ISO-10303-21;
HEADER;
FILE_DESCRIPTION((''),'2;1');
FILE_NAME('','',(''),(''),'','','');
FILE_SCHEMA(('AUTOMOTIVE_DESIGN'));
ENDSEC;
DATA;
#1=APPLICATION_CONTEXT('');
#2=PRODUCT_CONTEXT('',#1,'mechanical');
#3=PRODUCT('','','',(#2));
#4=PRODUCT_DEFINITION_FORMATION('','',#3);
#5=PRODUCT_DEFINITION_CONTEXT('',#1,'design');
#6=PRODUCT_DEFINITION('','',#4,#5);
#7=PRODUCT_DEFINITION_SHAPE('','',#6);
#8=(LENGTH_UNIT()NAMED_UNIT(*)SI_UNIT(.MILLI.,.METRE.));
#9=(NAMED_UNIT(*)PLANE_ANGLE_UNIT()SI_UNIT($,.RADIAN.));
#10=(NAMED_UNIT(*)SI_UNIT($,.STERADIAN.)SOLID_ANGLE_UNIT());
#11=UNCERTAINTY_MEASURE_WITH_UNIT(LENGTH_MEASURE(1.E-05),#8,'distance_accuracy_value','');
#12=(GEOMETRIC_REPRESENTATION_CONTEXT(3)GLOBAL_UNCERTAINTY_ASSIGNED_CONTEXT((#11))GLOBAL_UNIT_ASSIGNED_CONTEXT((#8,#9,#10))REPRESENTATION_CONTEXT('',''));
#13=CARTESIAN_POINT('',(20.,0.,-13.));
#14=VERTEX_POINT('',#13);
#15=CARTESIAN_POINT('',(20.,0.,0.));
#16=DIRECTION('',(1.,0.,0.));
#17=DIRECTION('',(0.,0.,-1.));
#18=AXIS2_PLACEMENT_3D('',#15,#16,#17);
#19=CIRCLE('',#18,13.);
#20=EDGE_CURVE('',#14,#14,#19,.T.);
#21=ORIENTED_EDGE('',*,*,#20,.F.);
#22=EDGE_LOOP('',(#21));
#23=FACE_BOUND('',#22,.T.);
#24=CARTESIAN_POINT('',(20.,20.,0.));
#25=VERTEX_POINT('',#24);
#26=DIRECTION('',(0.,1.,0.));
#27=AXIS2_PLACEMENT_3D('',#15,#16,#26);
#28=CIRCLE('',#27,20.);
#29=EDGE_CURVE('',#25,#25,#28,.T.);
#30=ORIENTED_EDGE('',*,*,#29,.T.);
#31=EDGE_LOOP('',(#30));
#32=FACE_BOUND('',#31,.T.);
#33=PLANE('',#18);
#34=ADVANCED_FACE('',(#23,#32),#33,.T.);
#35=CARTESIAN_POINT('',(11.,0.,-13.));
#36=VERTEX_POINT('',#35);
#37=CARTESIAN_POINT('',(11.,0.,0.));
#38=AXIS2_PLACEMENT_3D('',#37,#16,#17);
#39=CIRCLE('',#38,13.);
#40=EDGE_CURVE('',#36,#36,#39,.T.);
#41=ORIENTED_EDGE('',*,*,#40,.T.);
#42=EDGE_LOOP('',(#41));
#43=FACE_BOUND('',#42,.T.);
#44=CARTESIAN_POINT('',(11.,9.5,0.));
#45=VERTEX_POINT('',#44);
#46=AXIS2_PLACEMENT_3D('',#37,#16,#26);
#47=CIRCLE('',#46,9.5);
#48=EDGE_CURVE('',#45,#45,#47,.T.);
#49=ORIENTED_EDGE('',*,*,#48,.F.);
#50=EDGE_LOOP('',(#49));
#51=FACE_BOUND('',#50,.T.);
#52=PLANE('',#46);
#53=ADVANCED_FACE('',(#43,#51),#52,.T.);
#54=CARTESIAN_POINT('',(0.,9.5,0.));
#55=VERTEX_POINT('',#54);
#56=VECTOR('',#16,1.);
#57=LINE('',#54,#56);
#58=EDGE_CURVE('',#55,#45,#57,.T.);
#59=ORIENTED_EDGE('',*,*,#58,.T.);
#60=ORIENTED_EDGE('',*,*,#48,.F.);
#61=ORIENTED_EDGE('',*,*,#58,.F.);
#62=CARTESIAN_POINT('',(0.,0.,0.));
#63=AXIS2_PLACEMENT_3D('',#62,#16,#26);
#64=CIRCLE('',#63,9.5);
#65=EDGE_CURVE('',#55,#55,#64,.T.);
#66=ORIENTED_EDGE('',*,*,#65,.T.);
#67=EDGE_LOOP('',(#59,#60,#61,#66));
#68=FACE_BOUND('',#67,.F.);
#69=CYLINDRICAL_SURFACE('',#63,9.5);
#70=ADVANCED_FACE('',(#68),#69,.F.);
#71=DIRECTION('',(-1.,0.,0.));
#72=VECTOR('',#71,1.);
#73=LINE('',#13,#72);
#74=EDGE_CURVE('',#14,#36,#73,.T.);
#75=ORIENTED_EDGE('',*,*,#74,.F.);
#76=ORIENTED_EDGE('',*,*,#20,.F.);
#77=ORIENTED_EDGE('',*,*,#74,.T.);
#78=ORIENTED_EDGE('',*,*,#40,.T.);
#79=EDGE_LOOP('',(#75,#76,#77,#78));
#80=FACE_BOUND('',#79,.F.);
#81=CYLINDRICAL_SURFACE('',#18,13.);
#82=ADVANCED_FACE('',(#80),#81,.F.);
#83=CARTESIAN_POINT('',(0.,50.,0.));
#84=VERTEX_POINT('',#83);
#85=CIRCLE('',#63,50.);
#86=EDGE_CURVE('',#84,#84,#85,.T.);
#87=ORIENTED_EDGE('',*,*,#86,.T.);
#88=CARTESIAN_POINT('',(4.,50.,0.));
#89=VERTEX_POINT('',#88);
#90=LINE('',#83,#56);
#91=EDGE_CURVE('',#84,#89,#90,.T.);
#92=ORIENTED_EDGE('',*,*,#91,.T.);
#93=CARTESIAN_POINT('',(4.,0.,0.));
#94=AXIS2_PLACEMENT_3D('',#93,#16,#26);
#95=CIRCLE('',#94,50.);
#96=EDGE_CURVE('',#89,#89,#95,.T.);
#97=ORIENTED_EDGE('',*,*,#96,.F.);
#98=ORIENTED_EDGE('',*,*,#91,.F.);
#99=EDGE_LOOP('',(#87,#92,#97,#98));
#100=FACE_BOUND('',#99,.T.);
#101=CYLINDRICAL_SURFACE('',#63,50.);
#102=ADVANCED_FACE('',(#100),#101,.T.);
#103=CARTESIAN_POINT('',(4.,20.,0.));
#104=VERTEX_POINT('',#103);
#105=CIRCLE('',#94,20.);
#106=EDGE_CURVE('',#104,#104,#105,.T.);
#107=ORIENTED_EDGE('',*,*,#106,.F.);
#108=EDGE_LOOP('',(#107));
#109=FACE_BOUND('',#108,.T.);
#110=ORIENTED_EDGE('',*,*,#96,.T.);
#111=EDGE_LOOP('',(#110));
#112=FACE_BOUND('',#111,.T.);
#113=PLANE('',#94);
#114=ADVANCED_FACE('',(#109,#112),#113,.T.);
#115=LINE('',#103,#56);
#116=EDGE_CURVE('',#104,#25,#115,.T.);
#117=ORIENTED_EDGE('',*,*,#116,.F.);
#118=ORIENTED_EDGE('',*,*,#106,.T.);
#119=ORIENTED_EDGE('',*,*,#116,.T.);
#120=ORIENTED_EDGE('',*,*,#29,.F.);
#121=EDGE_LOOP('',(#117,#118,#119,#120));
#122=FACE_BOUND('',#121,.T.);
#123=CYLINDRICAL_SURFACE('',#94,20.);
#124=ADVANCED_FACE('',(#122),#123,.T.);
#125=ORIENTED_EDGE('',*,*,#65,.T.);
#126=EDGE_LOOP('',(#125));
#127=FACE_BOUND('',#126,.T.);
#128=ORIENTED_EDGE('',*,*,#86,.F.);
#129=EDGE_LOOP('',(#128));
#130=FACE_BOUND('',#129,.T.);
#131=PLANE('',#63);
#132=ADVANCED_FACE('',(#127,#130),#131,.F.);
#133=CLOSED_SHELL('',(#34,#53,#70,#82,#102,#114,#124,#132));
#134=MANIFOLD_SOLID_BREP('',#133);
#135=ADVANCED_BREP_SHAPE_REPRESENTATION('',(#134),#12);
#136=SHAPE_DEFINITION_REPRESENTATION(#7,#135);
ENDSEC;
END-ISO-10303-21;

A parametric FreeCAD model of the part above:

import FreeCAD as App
import Part
import Sketcher
from FreeCAD import Vector
Q = App.Units.Quantity


def add_polygon(sketch, points):
    """Adds a closed chain of lines whose ends are joined by coincident constraints."""
    first, n = sketch.GeometryCount, len(points)
    for a, b in zip(points, points[1:] + points[:1]):
        sketch.addGeometry(Part.LineSegment(App.Vector(*a, 0), App.Vector(*b, 0)), False)
    for i in range(n):
        sketch.addConstraint(Sketcher.Constraint("Coincident", first + i, 2, first + (i + 1) % n, 1))

doc = App.newDocument("Part")
params = doc.addObject("Spreadsheet::Sheet", "Params")
for row, (alias, value) in enumerate([
    ("sketch1_width", "9 mm"),
    ("sketch1_width2", "4 mm"),
    ("revolution_angle", "360 deg"),
    ("sketch2_diameter", "26 mm"),
    ("sketch2_diameter2", "27.85 mm"),
    ("pad1_length", "9 mm"),
], start=1):
    params.set(f"A{row}", alias)
    params.set(f"B{row}", "=" + value)
    params.setAlias(f"B{row}", alias)

body = doc.addObject("PartDesign::Body", "Body")

# Sketch on XY plane
sketch1 = body.newObject("Sketcher::SketchObject", "Sketch")
sketch1.AttachmentSupport = (doc.getObject("XY_Plane"), [""])
sketch1.MapMode = "FlatFace"
add_polygon(sketch1, [(0, 50), (0, 9.5), (11, 9.5), (11, 13.9), (20, 13.9), (20, 20), (4, 20), (4, 50)])  # lines 0-7
sketch1.addConstraint([
    Sketcher.Constraint("Vertical", 0),
    Sketcher.Constraint("Horizontal", 1),
    Sketcher.Constraint("Vertical", 2),
    Sketcher.Constraint("Horizontal", 3),
    Sketcher.Constraint("Vertical", 4),
    Sketcher.Constraint("Horizontal", 5),
    Sketcher.Constraint("Vertical", 6),
    Sketcher.Constraint("Horizontal", 7),
    Sketcher.Constraint("PointOnObject", 0, 2, -2),
    Sketcher.Constraint("DistanceX", 3, 1, 3, 2, Q("9 mm")),
    Sketcher.Constraint("DistanceX", 7, 2, 7, 1, Q("4 mm")),
    Sketcher.Constraint("DistanceX", -1, 1, 3, 2, Q("20 mm")),
    Sketcher.Constraint("DistanceY", -1, 1, 4, 2, Q("20 mm")),
    Sketcher.Constraint("DistanceY", -1, 1, 6, 2, Q("50 mm")),
    Sketcher.Constraint("DistanceY", -1, 1, 0, 2, Q("9.5 mm")),
    Sketcher.Constraint("DistanceY", -1, 1, 2, 2, Q("13.925 mm")),
])
sketch1.setExpression("Constraints[17]", "Params.sketch1_width")
sketch1.setExpression("Constraints[18]", "Params.sketch1_width2")
revolution = body.newObject("PartDesign::Revolution", "Revolution")
revolution.Profile = sketch1
revolution.ReferenceAxis = (sketch1, ["H_Axis"])
revolution.setExpression("Angle", "Params.revolution_angle")

# Sketch on YZ plane
sketch2 = body.newObject("Sketcher::SketchObject", "Sketch001")
sketch2.AttachmentSupport = (doc.getObject("YZ_Plane"), [""])
sketch2.MapMode = "FlatFace"
sketch2.AttachmentOffset = App.Placement(Vector(0, 0, 20), App.Rotation())
sketch2.addGeometry([
    Part.Circle(Vector(0, 0, 0), Vector(0, 0, 1), 14),
    Part.Circle(Vector(0, 0, 0), Vector(0, 0, 1), 13),
], False)
sketch2.addConstraint([
    Sketcher.Constraint("Coincident", 0, 3, -1, 1),
    Sketcher.Constraint("Coincident", 1, 3, -1, 1),
    Sketcher.Constraint("Diameter", 1, Q("26 mm")),
    Sketcher.Constraint("Diameter", 0, Q("27.85 mm")),
])
sketch2.setExpression("Constraints[2]", "Params.sketch2_diameter")
sketch2.setExpression("Constraints[3]", "Params.sketch2_diameter2")
pad1 = body.newObject("PartDesign::Pad", "Pad")
pad1.Profile = sketch2
pad1.setExpression("Length", "Params.pad1_length")
pad1.Reversed = True

doc.recompute()
